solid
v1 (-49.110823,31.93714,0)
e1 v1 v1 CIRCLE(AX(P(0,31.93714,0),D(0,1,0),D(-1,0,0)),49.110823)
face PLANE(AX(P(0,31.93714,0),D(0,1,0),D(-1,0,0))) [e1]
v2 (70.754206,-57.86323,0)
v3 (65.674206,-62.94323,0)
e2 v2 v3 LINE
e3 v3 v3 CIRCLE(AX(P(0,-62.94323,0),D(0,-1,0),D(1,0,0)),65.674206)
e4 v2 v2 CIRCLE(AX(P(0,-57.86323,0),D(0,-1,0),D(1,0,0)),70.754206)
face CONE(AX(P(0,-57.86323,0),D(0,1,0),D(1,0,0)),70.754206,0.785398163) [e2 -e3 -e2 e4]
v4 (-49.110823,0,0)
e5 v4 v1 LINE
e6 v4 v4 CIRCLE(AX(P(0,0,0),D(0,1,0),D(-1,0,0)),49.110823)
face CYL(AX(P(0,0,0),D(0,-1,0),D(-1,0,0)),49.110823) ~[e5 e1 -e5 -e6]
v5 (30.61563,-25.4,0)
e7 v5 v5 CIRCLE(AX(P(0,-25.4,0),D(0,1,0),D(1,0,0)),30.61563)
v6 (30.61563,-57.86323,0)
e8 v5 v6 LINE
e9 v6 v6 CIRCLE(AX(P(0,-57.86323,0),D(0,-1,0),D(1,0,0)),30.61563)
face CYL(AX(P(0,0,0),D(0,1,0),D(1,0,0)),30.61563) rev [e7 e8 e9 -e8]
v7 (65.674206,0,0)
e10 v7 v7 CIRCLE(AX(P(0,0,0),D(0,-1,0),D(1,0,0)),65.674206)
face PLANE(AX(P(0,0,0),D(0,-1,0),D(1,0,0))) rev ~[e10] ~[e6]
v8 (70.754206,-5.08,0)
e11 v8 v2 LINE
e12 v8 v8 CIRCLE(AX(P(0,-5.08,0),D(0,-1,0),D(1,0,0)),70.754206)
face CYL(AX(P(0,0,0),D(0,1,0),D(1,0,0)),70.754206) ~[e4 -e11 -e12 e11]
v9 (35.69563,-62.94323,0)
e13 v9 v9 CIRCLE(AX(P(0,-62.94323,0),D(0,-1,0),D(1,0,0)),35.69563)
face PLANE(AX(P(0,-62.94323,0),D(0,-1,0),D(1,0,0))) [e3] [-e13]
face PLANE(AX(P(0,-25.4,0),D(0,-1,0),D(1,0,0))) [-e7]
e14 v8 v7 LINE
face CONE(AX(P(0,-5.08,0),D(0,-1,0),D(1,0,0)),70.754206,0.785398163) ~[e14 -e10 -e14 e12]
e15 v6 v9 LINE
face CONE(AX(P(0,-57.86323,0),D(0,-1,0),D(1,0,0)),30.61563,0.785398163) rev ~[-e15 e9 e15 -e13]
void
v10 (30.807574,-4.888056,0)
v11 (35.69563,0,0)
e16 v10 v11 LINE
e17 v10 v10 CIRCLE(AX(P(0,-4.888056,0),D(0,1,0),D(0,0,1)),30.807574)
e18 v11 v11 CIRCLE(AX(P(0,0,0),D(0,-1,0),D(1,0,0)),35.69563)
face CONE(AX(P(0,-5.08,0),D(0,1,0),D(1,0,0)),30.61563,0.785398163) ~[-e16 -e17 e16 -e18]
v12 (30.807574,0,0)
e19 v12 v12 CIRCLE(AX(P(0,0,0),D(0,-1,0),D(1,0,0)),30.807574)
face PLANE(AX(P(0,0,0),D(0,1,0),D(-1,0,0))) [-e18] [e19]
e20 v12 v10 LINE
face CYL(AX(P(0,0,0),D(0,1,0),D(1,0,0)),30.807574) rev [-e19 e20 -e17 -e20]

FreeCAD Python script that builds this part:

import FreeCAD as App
import Part
import Sketcher
from FreeCAD import Vector
Q = App.Units.Quantity


def edges_at(feature, points):
    """Names of the edges that pass closest to the given points."""
    edges = feature.Shape.Edges
    near = lambda p: min(range(len(edges)), key=lambda i: edges[i].distToShape(Part.Vertex(*p))[0])
    return sorted({f"Edge{near(p) + 1}" for p in points})

doc = App.newDocument("Part")
body = doc.addObject("PartDesign::Body", "Body")

sketch1 = body.newObject("Sketcher::SketchObject", "Sketch")
sketch1.AttachmentSupport = (doc.getObject("XZ_Plane"), [""])
sketch1.MapMode = "FlatFace"
sketch1.addGeometry([
    Part.Circle(Vector(0, 0, 0), Vector(0, 0, 1), 71),
    Part.Circle(Vector(0, 0, 0), Vector(0, 0, 1), 31),
], False)
sketch1.addConstraint([
    Sketcher.Constraint("Coincident", 0, 3, -1, 1),
    Sketcher.Constraint("Coincident", 1, 3, -1, 1),
    Sketcher.Constraint("Diameter", 0, 141.508412),
    Sketcher.Constraint("Diameter", 1, 61.23126),
])
pad1 = body.newObject("PartDesign::Pad", "Pad")
pad1.Profile = sketch1
pad1.Length = 62.94323
doc.recompute()

chamfer = body.newObject("PartDesign::Chamfer", "Chamfer")
chamfer.Base = (pad1, edges_at(pad1, [
    (-70.754, -62.943, 0),
    (-30.616, -62.943, 0),
    (-70.754, 0, 0),
    (-30.616, 0, 0),
]))
chamfer.Size = Q("0.2 in")

sketch2 = body.newObject("Sketcher::SketchObject", "Sketch001")
sketch2.AttachmentSupport = (doc.getObject("XZ_Plane"), [""])
sketch2.MapMode = "FlatFace"
sketch2.addGeometry(Part.Circle(Vector(0, 0, 0), Vector(0, 0, 1), 49), False)
sketch2.addConstraint([
    Sketcher.Constraint("Coincident", 0, 3, -1, 1),
    Sketcher.Constraint("Diameter", 0, 98.221646),
])
pad2 = body.newObject("PartDesign::Pad", "Pad001")
pad2.Profile = sketch2
pad2.Length = 31.93714
pad2.Reversed = True

sketch3 = body.newObject("Sketcher::SketchObject", "Sketch002")
sketch3.AttachmentSupport = (doc.getObject("XZ_Plane"), [""])
sketch3.MapMode = "FlatFace"
sketch3.addGeometry(Part.Circle(Vector(0, 0, 0), Vector(0, 0, 1), 31), False)
sketch3.addConstraint([
    Sketcher.Constraint("Coincident", 0, 3, -1, 1),
    Sketcher.Constraint("Diameter", 0, 61.615148),
])
pad3 = body.newObject("PartDesign::Pad", "Pad002")
pad3.Profile = sketch3
pad3.Length = Q("1 in")

doc.recompute()
